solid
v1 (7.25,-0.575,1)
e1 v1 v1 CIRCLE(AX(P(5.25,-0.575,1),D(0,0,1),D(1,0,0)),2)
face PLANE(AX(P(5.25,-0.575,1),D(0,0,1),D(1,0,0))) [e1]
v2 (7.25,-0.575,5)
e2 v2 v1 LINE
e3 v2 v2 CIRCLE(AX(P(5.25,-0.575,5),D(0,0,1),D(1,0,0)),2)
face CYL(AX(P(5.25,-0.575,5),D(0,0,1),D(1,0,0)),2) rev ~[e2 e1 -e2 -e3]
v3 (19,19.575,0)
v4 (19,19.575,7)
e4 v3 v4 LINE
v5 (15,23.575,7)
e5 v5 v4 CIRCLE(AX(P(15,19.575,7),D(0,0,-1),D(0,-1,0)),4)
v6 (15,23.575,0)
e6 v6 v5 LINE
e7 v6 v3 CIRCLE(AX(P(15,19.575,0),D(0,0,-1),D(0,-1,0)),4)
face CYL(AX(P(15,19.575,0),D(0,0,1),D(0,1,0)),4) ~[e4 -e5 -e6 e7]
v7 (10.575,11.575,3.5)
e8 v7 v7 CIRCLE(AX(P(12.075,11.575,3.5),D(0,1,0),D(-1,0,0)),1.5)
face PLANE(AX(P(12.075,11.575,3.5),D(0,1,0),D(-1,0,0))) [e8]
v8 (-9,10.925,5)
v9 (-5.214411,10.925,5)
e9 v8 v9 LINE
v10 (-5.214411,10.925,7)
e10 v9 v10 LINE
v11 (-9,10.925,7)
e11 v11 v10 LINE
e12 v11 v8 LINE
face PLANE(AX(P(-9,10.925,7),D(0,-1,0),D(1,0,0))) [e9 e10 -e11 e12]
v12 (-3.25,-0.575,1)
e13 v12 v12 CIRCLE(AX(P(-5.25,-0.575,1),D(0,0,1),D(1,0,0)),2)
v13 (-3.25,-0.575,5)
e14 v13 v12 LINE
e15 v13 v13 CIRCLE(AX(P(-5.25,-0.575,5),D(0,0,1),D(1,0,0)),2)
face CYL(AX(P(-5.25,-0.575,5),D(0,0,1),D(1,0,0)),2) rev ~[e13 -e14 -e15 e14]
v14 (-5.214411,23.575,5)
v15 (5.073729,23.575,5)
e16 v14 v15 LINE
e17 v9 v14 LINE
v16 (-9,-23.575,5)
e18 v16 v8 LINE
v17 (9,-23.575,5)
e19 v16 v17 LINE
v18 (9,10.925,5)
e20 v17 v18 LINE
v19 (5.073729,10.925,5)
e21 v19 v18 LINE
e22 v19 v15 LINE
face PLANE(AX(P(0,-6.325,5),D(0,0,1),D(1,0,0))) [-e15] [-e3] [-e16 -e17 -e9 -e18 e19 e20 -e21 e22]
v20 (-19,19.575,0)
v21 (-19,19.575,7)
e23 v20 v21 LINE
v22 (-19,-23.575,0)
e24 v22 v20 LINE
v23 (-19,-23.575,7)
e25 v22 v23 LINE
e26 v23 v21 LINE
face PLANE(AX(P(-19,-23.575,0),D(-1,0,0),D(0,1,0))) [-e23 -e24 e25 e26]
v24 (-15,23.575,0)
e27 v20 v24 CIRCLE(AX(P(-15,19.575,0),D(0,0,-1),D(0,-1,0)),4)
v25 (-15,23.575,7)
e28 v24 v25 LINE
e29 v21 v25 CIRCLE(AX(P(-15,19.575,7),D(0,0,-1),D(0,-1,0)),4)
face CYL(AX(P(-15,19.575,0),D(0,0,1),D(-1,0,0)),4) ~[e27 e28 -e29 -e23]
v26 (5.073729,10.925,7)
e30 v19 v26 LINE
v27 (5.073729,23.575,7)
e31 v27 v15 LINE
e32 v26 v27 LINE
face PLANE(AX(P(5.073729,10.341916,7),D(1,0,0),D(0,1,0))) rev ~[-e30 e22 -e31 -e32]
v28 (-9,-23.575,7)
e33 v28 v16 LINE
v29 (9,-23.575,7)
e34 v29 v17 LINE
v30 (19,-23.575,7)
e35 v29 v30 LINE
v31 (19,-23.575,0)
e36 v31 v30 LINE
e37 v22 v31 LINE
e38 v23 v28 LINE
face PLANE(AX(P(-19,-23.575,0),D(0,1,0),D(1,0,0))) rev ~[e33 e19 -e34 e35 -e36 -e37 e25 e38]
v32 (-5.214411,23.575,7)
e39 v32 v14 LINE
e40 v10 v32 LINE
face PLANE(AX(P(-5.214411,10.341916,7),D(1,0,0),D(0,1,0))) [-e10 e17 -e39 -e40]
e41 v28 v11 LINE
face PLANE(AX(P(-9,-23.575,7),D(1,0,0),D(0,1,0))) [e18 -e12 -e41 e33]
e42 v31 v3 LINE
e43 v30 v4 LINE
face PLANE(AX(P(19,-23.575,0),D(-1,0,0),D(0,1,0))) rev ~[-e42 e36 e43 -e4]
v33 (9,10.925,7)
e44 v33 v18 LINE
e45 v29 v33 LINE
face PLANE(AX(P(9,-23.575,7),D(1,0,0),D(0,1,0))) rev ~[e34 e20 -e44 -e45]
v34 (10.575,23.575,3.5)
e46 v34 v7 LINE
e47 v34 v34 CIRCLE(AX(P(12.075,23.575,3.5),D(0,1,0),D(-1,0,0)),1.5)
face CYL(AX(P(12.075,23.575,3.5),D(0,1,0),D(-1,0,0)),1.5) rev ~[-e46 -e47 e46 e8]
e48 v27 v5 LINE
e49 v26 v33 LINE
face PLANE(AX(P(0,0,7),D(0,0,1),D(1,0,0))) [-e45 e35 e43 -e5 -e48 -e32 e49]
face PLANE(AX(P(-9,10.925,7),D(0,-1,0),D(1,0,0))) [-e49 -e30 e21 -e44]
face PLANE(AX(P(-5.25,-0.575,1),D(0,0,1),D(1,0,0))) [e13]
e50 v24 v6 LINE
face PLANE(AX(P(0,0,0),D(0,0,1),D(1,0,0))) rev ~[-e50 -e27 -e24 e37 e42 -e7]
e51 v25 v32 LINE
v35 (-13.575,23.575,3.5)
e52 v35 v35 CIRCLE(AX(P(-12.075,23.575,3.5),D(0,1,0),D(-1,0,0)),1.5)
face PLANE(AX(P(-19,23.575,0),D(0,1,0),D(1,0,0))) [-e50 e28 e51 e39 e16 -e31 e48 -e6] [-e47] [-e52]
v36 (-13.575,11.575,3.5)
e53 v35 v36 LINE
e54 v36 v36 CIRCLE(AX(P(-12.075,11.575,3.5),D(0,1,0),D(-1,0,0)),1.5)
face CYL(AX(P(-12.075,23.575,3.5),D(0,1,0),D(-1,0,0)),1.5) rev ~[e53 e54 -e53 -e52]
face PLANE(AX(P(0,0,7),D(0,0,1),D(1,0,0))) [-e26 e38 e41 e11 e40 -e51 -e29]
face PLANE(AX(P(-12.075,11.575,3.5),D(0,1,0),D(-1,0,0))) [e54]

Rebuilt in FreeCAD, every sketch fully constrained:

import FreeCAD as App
import Part
import Sketcher

V = App.Vector
Q = App.Units.Quantity


def edges_at(feature, points):
    """Names of the edges that pass closest to the given points."""
    edges = feature.Shape.Edges
    near = lambda p: min(range(len(edges)), key=lambda i: edges[i].distToShape(Part.Vertex(*p))[0])
    return sorted({f"Edge{near(p) + 1}" for p in points})


def add_polygon(sketch, points):
    """Adds a closed chain of lines whose ends are joined by coincident constraints."""
    first, n = sketch.GeometryCount, len(points)
    for a, b in zip(points, points[1:] + points[:1]):
        sketch.addGeometry(Part.LineSegment(App.Vector(*a, 0), App.Vector(*b, 0)), False)
    for i in range(n):
        sketch.addConstraint(Sketcher.Constraint("Coincident", first + i, 2, first + (i + 1) % n, 1))

doc = App.newDocument("Part")
params = doc.addObject("Spreadsheet::Sheet", "Params")
for row, (alias, value) in enumerate([
    ("sketch1_width", "38 mm"),
    ("sketch1_height", "47.15 mm"),
    ("pad1_length", "7 mm"),
    ("sketch2_diameter", "3 mm"),
    ("pocket1_length", "12 mm"),
    ("fillet_radius", "4 mm"),
    ("sketch3_width", "18 mm"),
    ("sketch3_height", "34.5 mm"),
    ("pocket2_length", "2 mm"),
    ("pocket3_length", "2 mm"),
    ("sketch5_diameter", "4 mm"),
    ("pocket4_length", "4 mm"),
], start=1):
    params.set(f"A{row}", alias)
    params.set(f"B{row}", "=" + value)
    params.setAlias(f"B{row}", alias)

body = doc.addObject("PartDesign::Body", "Body")

# Sketch on XY plane
sketch1 = doc.addObject("Sketcher::SketchObject", "Sketch")
body.addObject(sketch1)
sketch1.AttachmentSupport = (doc.XY_Plane, [""])
sketch1.MapMode = "FlatFace"
add_polygon(sketch1, [(-19, 24), (-19, -24), (19, -24), (19, 24)])  # lines 0-3
sketch1.addConstraint([
    Sketcher.Constraint("Vertical", 0),
    Sketcher.Constraint("Horizontal", 1),
    Sketcher.Constraint("Vertical", 2),
    Sketcher.Constraint("Horizontal", 3),
    Sketcher.Constraint("Symmetric", 0, 2, 2, 2, -1, 1),
    Sketcher.Constraint("DistanceX", 1, 1, 1, 2, Q("38 mm")),
    Sketcher.Constraint("DistanceY", 0, 2, 0, 1, Q("47.15 mm")),
])
sketch1.setExpression("Constraints[9]", "Params.sketch1_width")
sketch1.setExpression("Constraints[10]", "Params.sketch1_height")
pad1 = doc.addObject("PartDesign::Pad", "Pad")
body.addObject(pad1)
pad1.Profile = sketch1
pad1.setExpression("Length", "Params.pad1_length")

# Sketch on XZ plane
sketch2 = doc.addObject("Sketcher::SketchObject", "Sketch001")
body.addObject(sketch2)
sketch2.AttachmentSupport = (doc.XZ_Plane, [""])
sketch2.MapMode = "FlatFace"
sketch2.AttachmentOffset = App.Placement(V(0, 0, -23.575), App.Rotation())
sketch2.addGeometry([
    Part.Circle(V(12.1, 3.5, 0), V(0, 0, 1), 1.5),
    Part.Circle(V(-12.1, 3.5, 0), V(0, 0, 1), 1.5),
], False)
sketch2.addConstraint([
    Sketcher.Constraint("Equal", 0, 1),
    Sketcher.Constraint("Symmetric", 0, 3, 1, 3, -2),
    Sketcher.Constraint("Diameter", 0, Q("3 mm")),
    Sketcher.Constraint("DistanceY", -1, 1, 0, 3, Q("3.5 mm")),
    Sketcher.Constraint("DistanceX", 1, 3, 0, 3, Q("24.15 mm")),
])
sketch2.setExpression("Constraints[2]", "Params.sketch2_diameter")
pocket1 = doc.addObject("PartDesign::Pocket", "Pocket")
body.addObject(pocket1)
pocket1.Profile = sketch2
pocket1.setExpression("Length", "Params.pocket1_length")
pocket1.Reversed = True
doc.recompute()

fillet = doc.addObject("PartDesign::Fillet", "Fillet")
body.addObject(fillet)
fillet.Base = (pocket1, edges_at(pocket1, [(-19, 23.575, 3.5), (19, 23.575, 3.5)]))
fillet.setExpression("Radius", "Params.fillet_radius")

# Sketch on XY plane
sketch3 = doc.addObject("Sketcher::SketchObject", "Sketch002")
body.addObject(sketch3)
sketch3.AttachmentSupport = (doc.XY_Plane, [""])
sketch3.MapMode = "FlatFace"
sketch3.AttachmentOffset = App.Placement(V(0, 0, 7), App.Rotation())
add_polygon(sketch3, [(-9, 11), (-9, -24), (9, -24), (9, 11)])  # lines 0-3
sketch3.addConstraint([
    Sketcher.Constraint("Vertical", 0),
    Sketcher.Constraint("Horizontal", 1),
    Sketcher.Constraint("Vertical", 2),
    Sketcher.Constraint("Horizontal", 3),
    Sketcher.Constraint("DistanceX", 1, 1, 1, 2, Q("18 mm")),
    Sketcher.Constraint("DistanceY", 0, 2, 0, 1, Q("34.5 mm")),
    Sketcher.Constraint("DistanceX", 0, 2, -1, 1, Q("9 mm")),
    Sketcher.Constraint("DistanceY", 0, 2, -1, 1, Q("23.575 mm")),
])
sketch3.setExpression("Constraints[8]", "Params.sketch3_width")
sketch3.setExpression("Constraints[9]", "Params.sketch3_height")
pocket2 = doc.addObject("PartDesign::Pocket", "Pocket001")
body.addObject(pocket2)
pocket2.Profile = sketch3
pocket2.setExpression("Length", "Params.pocket2_length")

# Sketch on XY plane
sketch4 = doc.addObject("Sketcher::SketchObject", "Sketch003")
body.addObject(sketch4)
sketch4.AttachmentSupport = (doc.XY_Plane, [""])
sketch4.MapMode = "FlatFace"
sketch4.AttachmentOffset = App.Placement(V(0, 0, 7), App.Rotation())
add_polygon(sketch4, [(-5, 24), (-5, 10), (5, 10), (5, 24)])  # lines 0-3
sketch4.addConstraint([
    Sketcher.Constraint("Vertical", 0),
    Sketcher.Constraint("Horizontal", 1),
    Sketcher.Constraint("Vertical", 2),
    Sketcher.Constraint("Horizontal", 3),
    Sketcher.Constraint("DistanceY", -1, 1, 2, 2, Q("23.575001 mm")),
    Sketcher.Constraint("DistanceX", 1, 1, 1, 2, Q("10.28814 mm")),
    Sketcher.Constraint("DistanceY", 0, 2, 0, 1, Q("13.233085 mm")),
    Sketcher.Constraint("DistanceX", 0, 2, -1, 1, Q("5.214411 mm")),
])
pocket3 = doc.addObject("PartDesign::Pocket", "Pocket002")
body.addObject(pocket3)
pocket3.Profile = sketch4
pocket3.setExpression("Length", "Params.pocket3_length")

# Sketch on XY plane
sketch5 = doc.addObject("Sketcher::SketchObject", "Sketch004")
body.addObject(sketch5)
sketch5.AttachmentSupport = (doc.XY_Plane, [""])
sketch5.MapMode = "FlatFace"
sketch5.AttachmentOffset = App.Placement(V(0, 0, 5), App.Rotation())
sketch5.addGeometry([
    Part.Circle(V(-5.2, -0.6, 0), V(0, 0, 1), 2),
    Part.Circle(V(5.2, -0.6, 0), V(0, 0, 1), 2),
], False)
sketch5.addConstraint([
    Sketcher.Constraint("Equal", 0, 1),
    Sketcher.Constraint("Symmetric", 0, 3, 1, 3, -2),
    Sketcher.Constraint("Diameter", 0, Q("4 mm")),
    Sketcher.Constraint("DistanceX", 0, 3, 1, 3, Q("10.5 mm")),
    Sketcher.Constraint("DistanceY", 0, 3, -1, 1, Q("0.575 mm")),
])
sketch5.setExpression("Constraints[2]", "Params.sketch5_diameter")
pocket4 = doc.addObject("PartDesign::Pocket", "Pocket003")
body.addObject(pocket4)
pocket4.Profile = sketch5
pocket4.setExpression("Length", "Params.pocket4_length")

doc.recompute()
